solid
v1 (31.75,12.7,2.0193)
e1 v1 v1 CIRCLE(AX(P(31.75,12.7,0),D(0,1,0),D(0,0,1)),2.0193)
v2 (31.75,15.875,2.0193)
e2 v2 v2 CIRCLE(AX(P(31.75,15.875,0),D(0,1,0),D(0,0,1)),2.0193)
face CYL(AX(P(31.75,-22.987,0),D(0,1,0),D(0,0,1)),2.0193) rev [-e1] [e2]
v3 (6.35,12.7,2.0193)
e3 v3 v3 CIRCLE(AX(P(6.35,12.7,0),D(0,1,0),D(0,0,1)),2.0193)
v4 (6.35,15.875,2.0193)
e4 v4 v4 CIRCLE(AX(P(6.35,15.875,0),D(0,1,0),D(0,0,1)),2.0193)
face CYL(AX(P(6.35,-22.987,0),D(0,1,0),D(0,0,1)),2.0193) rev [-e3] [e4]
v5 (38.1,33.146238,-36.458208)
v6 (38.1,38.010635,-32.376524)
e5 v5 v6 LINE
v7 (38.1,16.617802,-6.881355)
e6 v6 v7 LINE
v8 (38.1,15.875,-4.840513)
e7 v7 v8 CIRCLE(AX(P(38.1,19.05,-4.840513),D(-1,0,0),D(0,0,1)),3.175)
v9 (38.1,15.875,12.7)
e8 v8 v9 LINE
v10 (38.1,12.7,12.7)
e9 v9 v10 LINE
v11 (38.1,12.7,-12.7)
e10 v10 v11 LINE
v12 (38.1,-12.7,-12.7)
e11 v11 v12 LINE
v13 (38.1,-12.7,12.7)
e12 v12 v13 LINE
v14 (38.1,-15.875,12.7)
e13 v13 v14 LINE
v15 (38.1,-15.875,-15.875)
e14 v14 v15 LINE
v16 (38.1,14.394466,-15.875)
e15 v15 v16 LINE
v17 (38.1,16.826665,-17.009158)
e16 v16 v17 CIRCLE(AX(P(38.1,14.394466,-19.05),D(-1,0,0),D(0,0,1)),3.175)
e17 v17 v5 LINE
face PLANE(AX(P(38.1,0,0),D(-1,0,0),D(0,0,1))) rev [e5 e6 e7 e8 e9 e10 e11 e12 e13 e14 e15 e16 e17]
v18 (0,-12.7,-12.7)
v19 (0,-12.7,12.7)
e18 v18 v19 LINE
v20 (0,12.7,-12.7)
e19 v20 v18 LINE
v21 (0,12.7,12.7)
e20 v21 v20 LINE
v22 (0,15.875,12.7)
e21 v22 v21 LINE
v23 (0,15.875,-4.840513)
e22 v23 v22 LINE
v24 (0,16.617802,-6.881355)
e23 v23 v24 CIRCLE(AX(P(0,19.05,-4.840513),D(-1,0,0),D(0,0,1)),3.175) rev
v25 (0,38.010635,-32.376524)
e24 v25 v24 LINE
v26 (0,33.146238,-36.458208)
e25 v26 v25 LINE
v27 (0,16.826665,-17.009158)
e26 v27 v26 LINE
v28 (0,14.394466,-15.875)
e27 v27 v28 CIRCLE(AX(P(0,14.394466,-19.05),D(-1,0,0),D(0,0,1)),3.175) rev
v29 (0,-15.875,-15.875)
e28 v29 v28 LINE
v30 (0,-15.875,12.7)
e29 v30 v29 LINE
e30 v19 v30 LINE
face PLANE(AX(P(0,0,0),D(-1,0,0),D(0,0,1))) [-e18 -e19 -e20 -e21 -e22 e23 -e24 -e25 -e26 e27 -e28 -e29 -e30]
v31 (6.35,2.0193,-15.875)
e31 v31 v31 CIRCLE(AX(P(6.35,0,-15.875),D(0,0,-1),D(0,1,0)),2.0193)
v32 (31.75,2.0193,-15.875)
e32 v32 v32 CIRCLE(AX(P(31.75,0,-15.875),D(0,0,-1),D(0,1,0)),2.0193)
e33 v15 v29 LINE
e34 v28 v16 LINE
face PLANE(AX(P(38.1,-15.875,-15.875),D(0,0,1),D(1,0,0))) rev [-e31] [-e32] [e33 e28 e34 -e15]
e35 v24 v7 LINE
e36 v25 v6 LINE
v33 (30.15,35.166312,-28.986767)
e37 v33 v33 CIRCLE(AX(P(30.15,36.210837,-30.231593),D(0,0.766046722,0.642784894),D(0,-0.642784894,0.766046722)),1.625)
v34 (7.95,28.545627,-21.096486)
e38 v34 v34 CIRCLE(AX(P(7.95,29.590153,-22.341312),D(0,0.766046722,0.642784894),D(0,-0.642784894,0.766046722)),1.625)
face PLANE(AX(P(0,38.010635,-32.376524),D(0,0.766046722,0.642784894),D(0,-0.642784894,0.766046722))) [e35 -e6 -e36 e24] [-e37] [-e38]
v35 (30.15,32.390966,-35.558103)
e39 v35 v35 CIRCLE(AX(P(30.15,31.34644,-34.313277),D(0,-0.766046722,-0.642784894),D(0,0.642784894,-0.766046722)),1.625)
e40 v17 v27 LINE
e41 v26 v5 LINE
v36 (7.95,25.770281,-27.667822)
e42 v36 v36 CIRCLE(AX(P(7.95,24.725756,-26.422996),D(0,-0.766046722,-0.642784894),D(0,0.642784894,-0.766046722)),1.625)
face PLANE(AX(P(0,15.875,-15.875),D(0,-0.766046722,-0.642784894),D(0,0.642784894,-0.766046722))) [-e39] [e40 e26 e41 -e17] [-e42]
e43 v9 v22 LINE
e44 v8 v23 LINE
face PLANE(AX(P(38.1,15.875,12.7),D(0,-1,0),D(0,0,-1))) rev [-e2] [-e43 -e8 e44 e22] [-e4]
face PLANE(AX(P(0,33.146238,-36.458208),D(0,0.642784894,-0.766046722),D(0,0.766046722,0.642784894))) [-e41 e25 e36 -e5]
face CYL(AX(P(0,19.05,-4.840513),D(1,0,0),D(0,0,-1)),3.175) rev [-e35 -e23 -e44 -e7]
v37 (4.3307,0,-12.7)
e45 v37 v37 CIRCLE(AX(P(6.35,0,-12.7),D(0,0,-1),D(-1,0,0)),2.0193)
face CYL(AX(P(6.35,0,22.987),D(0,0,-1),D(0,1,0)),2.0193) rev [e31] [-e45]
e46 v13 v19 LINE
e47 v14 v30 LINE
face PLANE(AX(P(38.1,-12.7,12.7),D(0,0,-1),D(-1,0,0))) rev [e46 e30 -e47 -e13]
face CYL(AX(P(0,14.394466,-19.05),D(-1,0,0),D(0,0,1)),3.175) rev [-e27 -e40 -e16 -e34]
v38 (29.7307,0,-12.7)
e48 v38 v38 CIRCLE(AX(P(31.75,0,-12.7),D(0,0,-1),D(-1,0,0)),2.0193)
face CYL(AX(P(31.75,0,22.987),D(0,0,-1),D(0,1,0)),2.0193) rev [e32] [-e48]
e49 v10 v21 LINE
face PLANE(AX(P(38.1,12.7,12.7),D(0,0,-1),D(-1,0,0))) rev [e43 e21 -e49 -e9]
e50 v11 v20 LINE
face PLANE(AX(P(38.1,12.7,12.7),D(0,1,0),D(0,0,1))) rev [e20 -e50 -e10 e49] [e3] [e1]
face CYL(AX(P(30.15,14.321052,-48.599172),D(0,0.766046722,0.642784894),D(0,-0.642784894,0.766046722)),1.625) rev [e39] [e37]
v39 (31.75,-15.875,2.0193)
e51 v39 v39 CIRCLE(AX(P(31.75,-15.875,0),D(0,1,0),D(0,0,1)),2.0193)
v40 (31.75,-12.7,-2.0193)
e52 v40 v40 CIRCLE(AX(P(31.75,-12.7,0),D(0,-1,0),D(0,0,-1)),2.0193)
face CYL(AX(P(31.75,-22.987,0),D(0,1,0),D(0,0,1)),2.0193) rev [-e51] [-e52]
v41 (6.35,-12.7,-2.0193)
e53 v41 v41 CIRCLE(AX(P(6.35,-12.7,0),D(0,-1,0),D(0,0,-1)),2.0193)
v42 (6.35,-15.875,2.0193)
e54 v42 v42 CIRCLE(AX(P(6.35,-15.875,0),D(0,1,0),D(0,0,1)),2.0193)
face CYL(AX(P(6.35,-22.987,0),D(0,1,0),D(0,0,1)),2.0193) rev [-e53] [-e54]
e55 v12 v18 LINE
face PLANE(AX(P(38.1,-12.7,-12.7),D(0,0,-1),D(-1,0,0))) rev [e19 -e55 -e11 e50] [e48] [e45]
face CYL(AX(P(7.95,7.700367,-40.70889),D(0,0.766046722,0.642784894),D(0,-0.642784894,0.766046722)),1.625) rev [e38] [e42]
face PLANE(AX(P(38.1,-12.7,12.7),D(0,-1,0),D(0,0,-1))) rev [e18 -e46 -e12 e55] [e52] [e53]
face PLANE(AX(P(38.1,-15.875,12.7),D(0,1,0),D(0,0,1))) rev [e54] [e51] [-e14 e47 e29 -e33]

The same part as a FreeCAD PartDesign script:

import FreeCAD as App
import Part
import Sketcher
from FreeCAD import Vector
Q = App.Units.Quantity


def edges_at(feature, points):
    """Names of the edges that pass closest to the given points."""
    edges = feature.Shape.Edges
    near = lambda p: min(range(len(edges)), key=lambda i: edges[i].distToShape(Part.Vertex(*p))[0])
    return sorted({f"Edge{near(p) + 1}" for p in points})


def add_polygon(sketch, points):
    """Adds a closed chain of lines whose ends are joined by coincident constraints."""
    first, n = sketch.GeometryCount, len(points)
    for a, b in zip(points, points[1:] + points[:1]):
        sketch.addGeometry(Part.LineSegment(App.Vector(*a, 0), App.Vector(*b, 0)), False)
    for i in range(n):
        sketch.addConstraint(Sketcher.Constraint("Coincident", first + i, 2, first + (i + 1) % n, 1))

doc = App.newDocument("Part")
params = doc.addObject("Spreadsheet::Sheet", "Params")
for row, (alias, value) in enumerate([
    ("sketch1_width", "1 in"),
    ("sketch1_width2", "1.25 in"),
    ("sketch1_height", "1.125 in"),
    ("pad1_length", "1.5 in"),
    ("sketch2_diameter", "0.159 in"),
    ("pocket1_length", "1.53 in"),
    ("sketch3_length", "0.25 in"),
    ("pad2_length", "1.5 in"),
    ("fillet_radius", "0.125 in"),
    ("pocket2_length", "1.125 in"),
], start=1):
    params.set(f"A{row}", alias)
    params.set(f"B{row}", "=" + value)
    params.setAlias(f"B{row}", alias)

body = doc.addObject("PartDesign::Body", "Body")

sketch1 = doc.addObject("Sketcher::SketchObject", "Sketch")
body.addObject(sketch1)
sketch1.AttachmentSupport = (doc.YZ_Plane, [""])
sketch1.MapMode = "FlatFace"
add_polygon(sketch1, [(12.7, 12.7), (12.7, -12.7), (-12.7, -12.7), (-12.7, 12.7), (-15.875, 12.7), (-15.875, -15.875), (15.875, -15.875), (15.875, 12.7)])
sketch1.addConstraint([
    Sketcher.Constraint("Vertical", 0),
    Sketcher.Constraint("Horizontal", 1),
    Sketcher.Constraint("Vertical", 2),
    Sketcher.Constraint("Horizontal", 3),
    Sketcher.Constraint("Vertical", 4),
    Sketcher.Constraint("Horizontal", 5),
    Sketcher.Constraint("Vertical", 6),
    Sketcher.Constraint("Horizontal", 7),
    Sketcher.Constraint("Symmetric", 0, 2, 2, 2, -1, 1),
    Sketcher.Constraint("Symmetric", 3, 2, 6, 2, -2),
    Sketcher.Constraint("Equal", 1, 0),
    Sketcher.Constraint("DistanceX", 1, 2, 1, 1, Q("1 in")),
    Sketcher.Constraint("DistanceX", 5, 1, 5, 2, Q("1.25 in")),
    Sketcher.Constraint("DistanceY", 4, 2, 4, 1, Q("1.125 in")),
])
sketch1.setExpression("Constraints[19]", "Params.sketch1_width")
sketch1.setExpression("Constraints[20]", "Params.sketch1_width2")
sketch1.setExpression("Constraints[21]", "Params.sketch1_height")
pad1 = doc.addObject("PartDesign::Pad", "Pad")
body.addObject(pad1)
pad1.Profile = sketch1
pad1.setExpression("Length", "Params.pad1_length")

sketch2 = doc.addObject("Sketcher::SketchObject", "Sketch001")
body.addObject(sketch2)
sketch2.AttachmentSupport = (doc.XZ_Plane, [""])
sketch2.MapMode = "FlatFace"
sketch2.AttachmentOffset = App.Placement(Vector(0, 0, -0.625 * 25.4), App.Rotation())
sketch2.addGeometry([
    Part.Circle(Vector(6.35, 0, 0), Vector(0, 0, 1), 2.0193),
    Part.Circle(Vector(31.75, 0, 0), Vector(0, 0, 1), 2.0193),
], False)
sketch2.addConstraint([
    Sketcher.Constraint("Equal", 0, 1),
    Sketcher.Constraint("PointOnObject", 0, 3, -1),
    Sketcher.Constraint("PointOnObject", 1, 3, -1),
    Sketcher.Constraint("Diameter", 0, Q("0.159 in")),
    Sketcher.Constraint("DistanceX", 0, 3, 1, 3, Q("1 in")),
    Sketcher.Constraint("DistanceX", -1, 1, 0, 3, Q("0.25 in")),
])
sketch2.setExpression("Constraints[3]", "Params.sketch2_diameter")
pocket1 = doc.addObject("PartDesign::Pocket", "Pocket")
body.addObject(pocket1)
pocket1.Profile = sketch2
pocket1.setExpression("Length", "Params.pocket1_length")
pocket1.Reversed = True

sketch3 = doc.addObject("Sketcher::SketchObject", "Sketch002")
body.addObject(sketch3)
sketch3.AttachmentSupport = (doc.YZ_Plane, [""])
sketch3.MapMode = "FlatFace"
sketch3.AttachmentOffset = App.Placement(Vector(0, 0, 1.5 * 25.4), App.Rotation())
add_polygon(sketch3, [(15.875, -15.875), (33.146238, -36.458208), (38.010635, -32.376524), (15.875, -5.996112)])
sketch3.addConstraint([
    Sketcher.Constraint("Vertical", 3),
    Sketcher.Constraint("Perpendicular", 0, 1),
    Sketcher.Constraint("Perpendicular", 1, 2),
    Sketcher.Constraint("Distance", 1, Q("0.25 in")),
    Sketcher.Constraint("DistanceX", -1, 1, 2, 2, Q("0.625 in")),
    Sketcher.Constraint("DistanceY", 3, 2, -1, 1, Q("0.625 in")),
    Sketcher.Constraint("DistanceY", 3, 2, 3, 1, Q("9.878888 mm")),
    Sketcher.Constraint("Distance", 0, Q("26.86939 mm")),
])
sketch3.setExpression("Constraints[7]", "Params.sketch3_length")
pad2 = doc.addObject("PartDesign::Pad", "Pad001")
body.addObject(pad2)
pad2.Profile = sketch3
pad2.setExpression("Length", "Params.pad2_length")
pad2.Reversed = True
doc.recompute()

fillet = doc.addObject("PartDesign::Fillet", "Fillet")
body.addObject(fillet)
fillet.Base = (pad2, edges_at(pad2, [(19.05, 15.875, -15.875), (19.05, 15.875, -5.996)]))
fillet.setExpression("Radius", "Params.fillet_radius")
doc.recompute()

polarpattern = doc.addObject("PartDesign::PolarPattern", "PolarPattern")
body.addObject(polarpattern)
polarpattern.Originals = [pocket1]
polarpattern.Axis = (doc.X_Axis, [""])
polarpattern.Angle = 90
polarpattern.Occurrences = 2
polarpattern.Reversed = True
body.Tip = polarpattern

sketch4 = doc.addObject("Sketcher::SketchObject", "Sketch003")
body.addObject(sketch4)
sketch4.Placement = App.Placement(Vector(0, 6.363383, 5.339474), App.Rotation(Vector(1, 0, 0), Vector(0, 0.642784894, -0.766046722), Vector(0, 0.766046722, 0.642784894), "ZXY"))
sketch4.addGeometry([
    Part.Circle(Vector(7.95, 36.134592, 0), Vector(0, 0, 1), 1.625),
    Part.Circle(Vector(30.15, 46.434592, 0), Vector(0, 0, 1), 1.625),
], False)
sketch4.addConstraint([
    Sketcher.Constraint("Equal", 0, 1),
    Sketcher.Constraint("Diameter", 0, Q("3.25 mm")),
    Sketcher.Constraint("DistanceX", -1, 1, 0, 3, Q("7.95 mm")),
    Sketcher.Constraint("DistanceX", -1, 1, 1, 3, Q("30.15 mm")),
    Sketcher.Constraint("DistanceY", 0, 3, 1, 3, Q("10.3 mm")),
    Sketcher.Constraint("DistanceY", -1, 1, 0, 3, Q("36.134592 mm")),
])
pocket2 = doc.addObject("PartDesign::Pocket", "Pocket001")
body.addObject(pocket2)
pocket2.Profile = sketch4
pocket2.setExpression("Length", "Params.pocket2_length")

doc.recompute()
